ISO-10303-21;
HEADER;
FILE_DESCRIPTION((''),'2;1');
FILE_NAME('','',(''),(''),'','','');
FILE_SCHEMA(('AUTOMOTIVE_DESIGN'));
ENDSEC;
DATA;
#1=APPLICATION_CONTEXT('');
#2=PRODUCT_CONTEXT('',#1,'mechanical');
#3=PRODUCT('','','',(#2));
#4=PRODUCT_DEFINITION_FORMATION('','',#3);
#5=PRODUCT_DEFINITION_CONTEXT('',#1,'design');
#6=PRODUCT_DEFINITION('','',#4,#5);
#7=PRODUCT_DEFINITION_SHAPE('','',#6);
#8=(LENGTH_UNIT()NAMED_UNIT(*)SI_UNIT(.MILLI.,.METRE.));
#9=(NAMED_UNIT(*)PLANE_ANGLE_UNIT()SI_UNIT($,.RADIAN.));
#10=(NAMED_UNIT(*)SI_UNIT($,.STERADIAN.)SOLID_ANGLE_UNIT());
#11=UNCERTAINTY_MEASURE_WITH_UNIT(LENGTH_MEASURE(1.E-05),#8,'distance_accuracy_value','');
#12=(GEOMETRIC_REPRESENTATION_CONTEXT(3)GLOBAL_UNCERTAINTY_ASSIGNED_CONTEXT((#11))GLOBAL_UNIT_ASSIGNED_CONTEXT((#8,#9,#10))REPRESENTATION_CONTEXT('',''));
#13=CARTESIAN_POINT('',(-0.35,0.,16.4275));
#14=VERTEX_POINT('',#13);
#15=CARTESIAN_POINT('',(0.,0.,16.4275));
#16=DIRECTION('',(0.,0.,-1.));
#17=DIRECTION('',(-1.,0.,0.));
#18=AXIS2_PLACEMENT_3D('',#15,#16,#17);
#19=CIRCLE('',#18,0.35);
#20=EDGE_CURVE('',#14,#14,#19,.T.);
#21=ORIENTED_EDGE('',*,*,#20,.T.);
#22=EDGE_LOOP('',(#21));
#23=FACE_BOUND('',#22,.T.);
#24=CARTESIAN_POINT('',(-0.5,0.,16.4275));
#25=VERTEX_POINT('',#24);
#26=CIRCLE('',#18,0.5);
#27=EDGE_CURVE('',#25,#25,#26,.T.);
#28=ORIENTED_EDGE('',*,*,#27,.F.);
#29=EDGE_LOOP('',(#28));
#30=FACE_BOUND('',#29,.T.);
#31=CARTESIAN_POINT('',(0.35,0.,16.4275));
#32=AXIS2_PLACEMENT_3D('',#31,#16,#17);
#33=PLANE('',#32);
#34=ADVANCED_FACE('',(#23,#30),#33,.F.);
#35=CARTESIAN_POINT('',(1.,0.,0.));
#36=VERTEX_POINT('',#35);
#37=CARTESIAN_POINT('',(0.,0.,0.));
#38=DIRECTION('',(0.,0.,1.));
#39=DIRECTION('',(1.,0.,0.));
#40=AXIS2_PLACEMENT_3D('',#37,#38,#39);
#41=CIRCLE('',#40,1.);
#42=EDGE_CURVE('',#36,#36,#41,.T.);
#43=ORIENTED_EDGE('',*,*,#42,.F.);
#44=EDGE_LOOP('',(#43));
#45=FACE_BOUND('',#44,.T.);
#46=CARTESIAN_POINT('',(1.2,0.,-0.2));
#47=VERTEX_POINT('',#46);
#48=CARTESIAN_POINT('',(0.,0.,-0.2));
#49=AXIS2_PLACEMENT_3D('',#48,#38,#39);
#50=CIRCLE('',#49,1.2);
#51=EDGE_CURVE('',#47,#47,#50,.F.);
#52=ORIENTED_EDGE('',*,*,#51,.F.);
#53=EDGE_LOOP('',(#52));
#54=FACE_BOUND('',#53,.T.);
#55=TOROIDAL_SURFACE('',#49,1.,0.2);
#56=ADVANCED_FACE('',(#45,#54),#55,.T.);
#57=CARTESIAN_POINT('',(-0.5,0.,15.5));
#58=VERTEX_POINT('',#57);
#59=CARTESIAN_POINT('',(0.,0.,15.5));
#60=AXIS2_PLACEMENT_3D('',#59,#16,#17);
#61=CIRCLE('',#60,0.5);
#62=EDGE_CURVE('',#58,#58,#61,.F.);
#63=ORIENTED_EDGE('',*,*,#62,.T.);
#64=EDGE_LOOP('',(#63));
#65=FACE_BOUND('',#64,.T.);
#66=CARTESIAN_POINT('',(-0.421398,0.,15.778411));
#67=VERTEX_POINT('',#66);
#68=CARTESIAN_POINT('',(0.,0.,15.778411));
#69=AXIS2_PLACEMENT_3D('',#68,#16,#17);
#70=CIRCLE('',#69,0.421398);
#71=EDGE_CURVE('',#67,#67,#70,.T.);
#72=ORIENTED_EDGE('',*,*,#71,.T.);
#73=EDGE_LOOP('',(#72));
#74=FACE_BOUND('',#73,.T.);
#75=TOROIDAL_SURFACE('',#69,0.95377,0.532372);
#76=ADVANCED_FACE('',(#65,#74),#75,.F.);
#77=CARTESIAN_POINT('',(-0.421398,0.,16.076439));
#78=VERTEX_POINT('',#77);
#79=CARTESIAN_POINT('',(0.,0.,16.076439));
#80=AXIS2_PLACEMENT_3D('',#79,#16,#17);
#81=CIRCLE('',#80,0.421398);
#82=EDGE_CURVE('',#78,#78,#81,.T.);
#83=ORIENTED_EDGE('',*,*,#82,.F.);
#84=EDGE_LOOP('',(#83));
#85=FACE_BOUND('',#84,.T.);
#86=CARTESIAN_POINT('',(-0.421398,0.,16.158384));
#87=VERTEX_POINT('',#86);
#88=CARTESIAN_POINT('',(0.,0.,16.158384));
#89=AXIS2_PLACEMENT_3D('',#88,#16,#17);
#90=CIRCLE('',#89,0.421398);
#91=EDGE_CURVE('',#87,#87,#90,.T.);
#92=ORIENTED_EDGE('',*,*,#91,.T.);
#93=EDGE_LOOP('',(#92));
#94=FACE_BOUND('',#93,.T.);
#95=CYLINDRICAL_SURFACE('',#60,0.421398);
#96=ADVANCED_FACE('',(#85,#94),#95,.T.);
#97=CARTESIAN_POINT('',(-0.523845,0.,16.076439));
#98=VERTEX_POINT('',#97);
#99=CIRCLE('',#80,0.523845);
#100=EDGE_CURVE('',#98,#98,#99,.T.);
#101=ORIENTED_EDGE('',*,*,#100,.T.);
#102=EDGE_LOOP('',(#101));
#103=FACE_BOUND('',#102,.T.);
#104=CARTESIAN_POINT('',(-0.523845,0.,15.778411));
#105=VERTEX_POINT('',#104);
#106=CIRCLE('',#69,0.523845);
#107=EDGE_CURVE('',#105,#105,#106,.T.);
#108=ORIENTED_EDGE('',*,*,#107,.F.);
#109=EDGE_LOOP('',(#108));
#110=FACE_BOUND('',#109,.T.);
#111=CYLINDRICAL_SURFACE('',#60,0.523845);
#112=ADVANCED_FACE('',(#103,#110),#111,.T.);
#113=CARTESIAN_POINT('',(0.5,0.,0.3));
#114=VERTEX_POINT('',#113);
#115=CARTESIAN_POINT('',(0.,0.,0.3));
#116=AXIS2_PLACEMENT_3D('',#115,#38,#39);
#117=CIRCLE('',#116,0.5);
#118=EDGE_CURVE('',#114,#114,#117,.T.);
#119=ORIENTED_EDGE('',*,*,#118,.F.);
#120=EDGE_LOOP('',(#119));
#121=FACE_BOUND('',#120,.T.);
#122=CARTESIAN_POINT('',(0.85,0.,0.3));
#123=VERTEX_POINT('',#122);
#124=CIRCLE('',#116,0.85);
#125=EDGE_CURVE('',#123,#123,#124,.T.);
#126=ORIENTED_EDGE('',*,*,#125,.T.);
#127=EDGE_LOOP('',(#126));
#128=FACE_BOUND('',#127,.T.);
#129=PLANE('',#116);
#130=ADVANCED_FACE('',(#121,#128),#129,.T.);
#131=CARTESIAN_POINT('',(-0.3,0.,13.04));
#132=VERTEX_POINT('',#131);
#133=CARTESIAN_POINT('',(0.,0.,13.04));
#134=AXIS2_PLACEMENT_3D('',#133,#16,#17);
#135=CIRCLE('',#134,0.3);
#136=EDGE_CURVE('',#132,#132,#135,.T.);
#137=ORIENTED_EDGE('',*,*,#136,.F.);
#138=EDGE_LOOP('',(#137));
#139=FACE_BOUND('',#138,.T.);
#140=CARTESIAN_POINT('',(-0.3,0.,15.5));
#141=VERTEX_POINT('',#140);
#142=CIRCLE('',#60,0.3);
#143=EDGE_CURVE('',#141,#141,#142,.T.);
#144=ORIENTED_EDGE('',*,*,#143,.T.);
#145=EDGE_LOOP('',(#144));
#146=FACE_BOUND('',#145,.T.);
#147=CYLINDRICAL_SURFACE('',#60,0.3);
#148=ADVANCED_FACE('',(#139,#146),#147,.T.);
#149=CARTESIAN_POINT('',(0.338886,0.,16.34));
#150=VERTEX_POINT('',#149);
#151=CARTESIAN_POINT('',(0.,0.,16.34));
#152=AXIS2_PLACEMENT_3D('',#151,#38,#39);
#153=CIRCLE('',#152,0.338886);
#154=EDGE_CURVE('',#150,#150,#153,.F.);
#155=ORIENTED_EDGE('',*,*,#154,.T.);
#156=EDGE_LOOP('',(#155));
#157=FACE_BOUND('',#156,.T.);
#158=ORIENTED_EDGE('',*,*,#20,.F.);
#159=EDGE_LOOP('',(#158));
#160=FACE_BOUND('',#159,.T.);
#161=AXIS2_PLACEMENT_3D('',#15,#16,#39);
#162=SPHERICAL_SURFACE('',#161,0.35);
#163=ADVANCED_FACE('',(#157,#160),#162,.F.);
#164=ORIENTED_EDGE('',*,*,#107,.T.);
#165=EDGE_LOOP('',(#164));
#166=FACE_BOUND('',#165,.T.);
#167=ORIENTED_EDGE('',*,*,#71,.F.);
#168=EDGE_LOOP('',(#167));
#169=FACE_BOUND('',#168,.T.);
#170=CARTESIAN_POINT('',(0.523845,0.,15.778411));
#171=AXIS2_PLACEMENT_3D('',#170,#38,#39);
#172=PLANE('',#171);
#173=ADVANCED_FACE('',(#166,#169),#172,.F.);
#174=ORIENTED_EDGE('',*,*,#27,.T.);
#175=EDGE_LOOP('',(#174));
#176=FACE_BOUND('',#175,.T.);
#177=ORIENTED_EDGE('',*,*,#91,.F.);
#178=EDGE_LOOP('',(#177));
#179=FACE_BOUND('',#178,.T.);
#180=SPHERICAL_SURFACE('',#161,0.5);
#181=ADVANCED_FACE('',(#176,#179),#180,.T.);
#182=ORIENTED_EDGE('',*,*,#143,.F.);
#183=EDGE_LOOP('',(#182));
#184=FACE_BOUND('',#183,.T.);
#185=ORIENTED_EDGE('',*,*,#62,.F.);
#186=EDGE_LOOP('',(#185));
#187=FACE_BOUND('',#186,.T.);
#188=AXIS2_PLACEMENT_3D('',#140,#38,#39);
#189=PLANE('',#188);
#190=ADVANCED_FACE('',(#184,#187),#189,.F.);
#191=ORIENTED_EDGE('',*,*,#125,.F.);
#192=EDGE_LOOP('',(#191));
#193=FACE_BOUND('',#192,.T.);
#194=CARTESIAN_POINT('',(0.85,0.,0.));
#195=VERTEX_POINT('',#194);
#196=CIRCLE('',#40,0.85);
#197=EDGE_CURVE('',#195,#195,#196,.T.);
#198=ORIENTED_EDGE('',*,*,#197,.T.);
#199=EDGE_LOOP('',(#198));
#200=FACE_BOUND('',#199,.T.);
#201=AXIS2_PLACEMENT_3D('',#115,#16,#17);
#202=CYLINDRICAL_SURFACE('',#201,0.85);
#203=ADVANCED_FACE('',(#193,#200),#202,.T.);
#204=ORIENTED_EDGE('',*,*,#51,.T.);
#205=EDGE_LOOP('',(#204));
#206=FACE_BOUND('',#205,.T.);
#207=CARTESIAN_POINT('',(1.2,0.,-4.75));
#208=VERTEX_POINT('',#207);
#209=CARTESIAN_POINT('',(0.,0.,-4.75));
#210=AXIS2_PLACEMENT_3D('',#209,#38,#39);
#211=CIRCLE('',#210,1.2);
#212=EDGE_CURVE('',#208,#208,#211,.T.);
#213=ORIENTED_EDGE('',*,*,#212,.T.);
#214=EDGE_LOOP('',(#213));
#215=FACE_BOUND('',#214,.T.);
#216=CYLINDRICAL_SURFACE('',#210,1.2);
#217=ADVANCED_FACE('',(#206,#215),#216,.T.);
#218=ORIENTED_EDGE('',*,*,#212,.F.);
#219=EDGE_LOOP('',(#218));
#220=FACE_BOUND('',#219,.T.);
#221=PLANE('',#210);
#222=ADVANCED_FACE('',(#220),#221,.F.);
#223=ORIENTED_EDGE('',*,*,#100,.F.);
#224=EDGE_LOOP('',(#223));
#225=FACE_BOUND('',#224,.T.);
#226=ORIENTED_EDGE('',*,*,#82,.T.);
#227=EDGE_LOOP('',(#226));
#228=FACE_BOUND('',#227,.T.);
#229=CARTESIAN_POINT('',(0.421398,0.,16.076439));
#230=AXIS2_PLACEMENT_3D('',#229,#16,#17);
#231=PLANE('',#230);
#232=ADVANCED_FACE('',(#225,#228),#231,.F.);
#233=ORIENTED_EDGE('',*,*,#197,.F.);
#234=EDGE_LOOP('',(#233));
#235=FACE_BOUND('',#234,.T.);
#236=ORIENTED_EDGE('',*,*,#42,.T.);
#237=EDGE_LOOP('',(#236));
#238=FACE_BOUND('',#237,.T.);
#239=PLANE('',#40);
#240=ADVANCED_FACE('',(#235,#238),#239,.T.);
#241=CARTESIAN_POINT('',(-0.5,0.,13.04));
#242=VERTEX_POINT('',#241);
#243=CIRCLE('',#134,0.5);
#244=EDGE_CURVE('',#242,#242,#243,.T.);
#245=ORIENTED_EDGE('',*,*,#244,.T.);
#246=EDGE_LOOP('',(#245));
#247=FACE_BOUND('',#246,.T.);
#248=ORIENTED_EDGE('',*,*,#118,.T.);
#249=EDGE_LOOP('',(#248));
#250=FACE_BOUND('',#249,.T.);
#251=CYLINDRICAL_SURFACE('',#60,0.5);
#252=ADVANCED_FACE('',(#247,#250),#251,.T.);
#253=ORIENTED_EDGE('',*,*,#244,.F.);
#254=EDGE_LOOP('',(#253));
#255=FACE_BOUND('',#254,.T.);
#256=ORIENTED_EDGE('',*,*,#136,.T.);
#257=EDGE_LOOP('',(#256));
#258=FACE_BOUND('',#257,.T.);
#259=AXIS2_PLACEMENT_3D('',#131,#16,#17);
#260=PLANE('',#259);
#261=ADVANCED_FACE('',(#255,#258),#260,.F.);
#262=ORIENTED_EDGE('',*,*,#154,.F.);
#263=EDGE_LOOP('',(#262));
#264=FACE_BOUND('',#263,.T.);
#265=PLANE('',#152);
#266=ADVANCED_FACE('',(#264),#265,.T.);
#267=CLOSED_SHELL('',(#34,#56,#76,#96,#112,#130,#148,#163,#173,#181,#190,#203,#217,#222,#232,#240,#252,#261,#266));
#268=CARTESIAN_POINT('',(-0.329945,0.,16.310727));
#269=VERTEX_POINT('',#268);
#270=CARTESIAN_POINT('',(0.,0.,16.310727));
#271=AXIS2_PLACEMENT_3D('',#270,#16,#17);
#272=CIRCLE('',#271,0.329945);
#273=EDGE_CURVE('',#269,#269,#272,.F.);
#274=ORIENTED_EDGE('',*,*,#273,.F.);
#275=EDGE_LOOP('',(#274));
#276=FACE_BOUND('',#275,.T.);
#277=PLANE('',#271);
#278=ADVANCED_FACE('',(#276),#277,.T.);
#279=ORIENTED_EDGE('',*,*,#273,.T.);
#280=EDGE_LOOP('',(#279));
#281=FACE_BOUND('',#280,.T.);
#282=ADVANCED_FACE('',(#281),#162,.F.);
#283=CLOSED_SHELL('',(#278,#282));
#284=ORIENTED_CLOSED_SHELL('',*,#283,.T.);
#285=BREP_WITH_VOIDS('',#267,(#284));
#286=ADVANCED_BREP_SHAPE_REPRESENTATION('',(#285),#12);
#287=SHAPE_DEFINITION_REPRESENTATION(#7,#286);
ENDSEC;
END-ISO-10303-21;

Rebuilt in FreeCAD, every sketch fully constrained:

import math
import FreeCAD as App
import Part
import Sketcher
from FreeCAD import Vector


def edges_at(feature, points):
    """Names of the edges that pass closest to the given points."""
    edges = feature.Shape.Edges
    near = lambda p: min(range(len(edges)), key=lambda i: edges[i].distToShape(Part.Vertex(*p))[0])
    return sorted({f"Edge{near(p) + 1}" for p in points})


def add_polygon(sketch, points):
    """Adds a closed chain of lines whose ends are joined by coincident constraints."""
    first, n = sketch.GeometryCount, len(points)
    for a, b in zip(points, points[1:] + points[:1]):
        sketch.addGeometry(Part.LineSegment(App.Vector(*a, 0), App.Vector(*b, 0)), False)
    for i in range(n):
        sketch.addConstraint(Sketcher.Constraint("Coincident", first + i, 2, first + (i + 1) % n, 1))

doc = App.newDocument("Part")
params = doc.addObject("Spreadsheet::Sheet", "Params")
for row, (alias, value) in enumerate([
    ("sketch1_diameter", "1 mm"),
    ("pad1_length", "15.5 mm"),
    ("sketch2_diameter", "2.4 mm"),
    ("pad2_length", "4.75 mm"),
    ("fillet_radius", "0.2 mm"),
    ("sketch3_diameter", "1.7 mm"),
    ("pad3_length", "0.3 mm"),
    ("sketch4_radius", "0.5 mm"),
    ("sketch4_radius2", "0.35 mm"),
    ("revolution_angle", "360 deg"),
    ("revolution2_angle", "360 deg"),
    ("sketch6_height", "2.46 mm"),
    ("groove_angle", "360 deg"),
], start=1):
    params.set(f"A{row}", alias)
    params.set(f"B{row}", "=" + value)
    params.setAlias(f"B{row}", alias)

body = doc.addObject("PartDesign::Body", "Body")

sketch1 = doc.addObject("Sketcher::SketchObject", "Sketch")
body.addObject(sketch1)
sketch1.AttachmentSupport = (doc.XY_Plane, [""])
sketch1.MapMode = "FlatFace"
sketch1.addGeometry(Part.Circle(Vector(0, 0, 0), Vector(0, 0, 1), 0.5), False)
sketch1.addConstraint([
    Sketcher.Constraint("Coincident", 0, 3, -1, 1),
    Sketcher.Constraint("Diameter", 0, 1.0),
])
sketch1.setExpression("Constraints[1]", "Params.sketch1_diameter")
pad1 = doc.addObject("PartDesign::Pad", "Pad")
body.addObject(pad1)
pad1.Profile = sketch1
pad1.setExpression("Length", "Params.pad1_length")

sketch2 = doc.addObject("Sketcher::SketchObject", "Sketch001")
body.addObject(sketch2)
sketch2.AttachmentSupport = (doc.XY_Plane, [""])
sketch2.MapMode = "FlatFace"
sketch2.addGeometry(Part.Circle(Vector(0, 0, 0), Vector(0, 0, 1), 1.2), False)
sketch2.addConstraint([
    Sketcher.Constraint("Coincident", 0, 3, -1, 1),
    Sketcher.Constraint("Diameter", 0, 2.4),
])
sketch2.setExpression("Constraints[1]", "Params.sketch2_diameter")
pad2 = doc.addObject("PartDesign::Pad", "Pad001")
body.addObject(pad2)
pad2.Profile = sketch2
pad2.setExpression("Length", "Params.pad2_length")
pad2.Reversed = True
doc.recompute()

fillet = doc.addObject("PartDesign::Fillet", "Fillet")
body.addObject(fillet)
fillet.Base = (pad2, edges_at(pad2, [(-1.2, 0, 0)]))
fillet.setExpression("Radius", "Params.fillet_radius")

sketch3 = doc.addObject("Sketcher::SketchObject", "Sketch002")
body.addObject(sketch3)
sketch3.AttachmentSupport = (doc.XY_Plane, [""])
sketch3.MapMode = "FlatFace"
sketch3.addGeometry(Part.Circle(Vector(0, 0, 0), Vector(0, 0, 1), 0.8), False)
sketch3.addConstraint([
    Sketcher.Constraint("Coincident", 0, 3, -1, 1),
    Sketcher.Constraint("Diameter", 0, 1.7),
])
sketch3.setExpression("Constraints[1]", "Params.sketch3_diameter")
pad3 = doc.addObject("PartDesign::Pad", "Pad002")
body.addObject(pad3)
pad3.Profile = sketch3
pad3.setExpression("Length", "Params.pad3_length")

sketch4 = doc.addObject("Sketcher::SketchObject", "Sketch003")
body.addObject(sketch4)
sketch4.AttachmentSupport = (doc.XZ_Plane, [""])
sketch4.MapMode = "FlatFace"
sketch4.addGeometry([
    Part.LineSegment(Vector(0.5, 15.5, 0), Vector(0, 15.5, 0)),
    Part.LineSegment(Vector(0, 15.5, 0), Vector(0, 16.08, 0)),
    Part.ArcOfCircle(Part.Circle(Vector(0, 16.43, 0), Vector(0, 0, 1), 0.35), math.radians(-90), math.radians(0)),
    Part.LineSegment(Vector(0.35, 16.43, 0), Vector(0.5, 16.43, 0)),
    Part.ArcOfCircle(Part.Circle(Vector(0, 16.43, 0), Vector(0, 0, 1), 0.5), math.radians(-33), math.radians(0)),
    Part.LineSegment(Vector(0.42, 16.16, 0), Vector(0.42, 16.08, 0)),
    Part.LineSegment(Vector(0.42, 16.08, 0), Vector(0.52, 16.08, 0)),
    Part.LineSegment(Vector(0.52, 16.08, 0), Vector(0.52, 15.78, 0)),
    Part.LineSegment(Vector(0.52, 15.78, 0), Vector(0.42, 15.78, 0)),
    Part.ArcOfCircle(Part.Circle(Vector(0.95, 15.78, 0), Vector(0, 0, 1), 0.53), math.radians(-180), math.radians(-148)),
], False)
sketch4.addConstraint([
    Sketcher.Constraint("Coincident", 0, 2, 1, 1),
    Sketcher.Constraint("Coincident", 1, 2, 2, 1),
    Sketcher.Constraint("Coincident", 2, 2, 3, 1),
    Sketcher.Constraint("Coincident", 3, 2, 4, 2),
    Sketcher.Constraint("Coincident", 4, 1, 5, 1),
    Sketcher.Constraint("Coincident", 5, 2, 6, 1),
    Sketcher.Constraint("Coincident", 6, 2, 7, 1),
    Sketcher.Constraint("Coincident", 7, 2, 8, 1),
    Sketcher.Constraint("Coincident", 8, 2, 9, 1),
    Sketcher.Constraint("Coincident", 9, 2, 0, 1),
    Sketcher.Constraint("Horizontal", 0),
    Sketcher.Constraint("Vertical", 1),
    Sketcher.Constraint("Horizontal", 3),
    Sketcher.Constraint("Vertical", 5),
    Sketcher.Constraint("Horizontal", 6),
    Sketcher.Constraint("Vertical", 7),
    Sketcher.Constraint("Horizontal", 8),
    Sketcher.Constraint("Coincident", 4, 3, 2, 3),
    Sketcher.Constraint("PointOnObject", 2, 3, -2),
    Sketcher.Constraint("PointOnObject", 0, 2, -2),
    Sketcher.Constraint("Horizontal", 4, 3, 2, 2),
    Sketcher.Constraint("Horizontal", 9, 3, 7, 2),
    Sketcher.Constraint("Vertical", 5, 2, 8, 2),
    Sketcher.Constraint("Vertical", 3, 2, 9, 2),
    Sketcher.Constraint("Radius", 4, 0.5),
    Sketcher.Constraint("Radius", 2, 0.35),
    Sketcher.Constraint("DistanceY", -1, 1, 0, 2, 15.5),
    Sketcher.Constraint("Radius", 9, 0.532372),
    Sketcher.Constraint("DistanceY", 1, 1, 1, 2, 0.5775),
    Sketcher.Constraint("DistanceY", 7, 2, 7, 1, 0.298028),
    Sketcher.Constraint("DistanceX", -1, 1, 4, 1, 0.421398),
    Sketcher.Constraint("DistanceX", 6, 1, 6, 2, 0.102447),
])
sketch4.setExpression("Constraints[24]", "Params.sketch4_radius")
sketch4.setExpression("Constraints[25]", "Params.sketch4_radius2")
revolution = doc.addObject("PartDesign::Revolution", "Revolution")
body.addObject(revolution)
revolution.Profile = sketch4
revolution.ReferenceAxis = (sketch4, ["V_Axis"])
revolution.setExpression("Angle", "Params.revolution_angle")

sketch5 = doc.addObject("Sketcher::SketchObject", "Sketch004")
body.addObject(sketch5)
sketch5.AttachmentSupport = (doc.XZ_Plane, [""])
sketch5.MapMode = "FlatFace"
add_polygon(sketch5, [(-0.452, 16.311), (-0.452, 16.34), (0, 16.34), (0, 16.311)])
sketch5.addConstraint([
    Sketcher.Constraint("Vertical", 0),
    Sketcher.Constraint("Horizontal", 1),
    Sketcher.Constraint("Vertical", 2),
    Sketcher.Constraint("Horizontal", 3),
    Sketcher.Constraint("PointOnObject", 1, 2, -2),
    Sketcher.Constraint("DistanceY", -1, 1, 0, 2, 16.34),
    Sketcher.Constraint("DistanceX", 1, 1, 1, 2, 0.452483),
    Sketcher.Constraint("DistanceY", 0, 1, 0, 2, 0.029273),
])
revolution2 = doc.addObject("PartDesign::Revolution", "Revolution001")
body.addObject(revolution2)
revolution2.Profile = sketch5
revolution2.ReferenceAxis = (sketch5, ["V_Axis"])
revolution2.setExpression("Angle", "Params.revolution2_angle")

sketch6 = doc.addObject("Sketcher::SketchObject", "Sketch005")
body.addObject(sketch6)
sketch6.AttachmentSupport = (doc.XZ_Plane, [""])
sketch6.MapMode = "FlatFace"
add_polygon(sketch6, [(-1.4, 13), (-1.4, 15.5), (-0.3, 15.5), (-0.3, 13)])
sketch6.addConstraint([
    Sketcher.Constraint("Vertical", 0),
    Sketcher.Constraint("Horizontal", 1),
    Sketcher.Constraint("Vertical", 2),
    Sketcher.Constraint("Horizontal", 3),
    Sketcher.Constraint("DistanceY", 0, 1, 0, 2, 2.46),
    Sketcher.Constraint("DistanceY", -1, 1, 0, 2, 15.5),
    Sketcher.Constraint("DistanceX", 1, 2, -1, 1, 0.3),
    Sketcher.Constraint("DistanceX", 1, 1, 1, 2, 1.076197),
])
sketch6.setExpression("Constraints[8]", "Params.sketch6_height")
groove = doc.addObject("PartDesign::Groove", "Groove")
body.addObject(groove)
groove.Profile = sketch6
groove.ReferenceAxis = (sketch6, ["V_Axis"])
groove.setExpression("Angle", "Params.groove_angle")

doc.recompute()
